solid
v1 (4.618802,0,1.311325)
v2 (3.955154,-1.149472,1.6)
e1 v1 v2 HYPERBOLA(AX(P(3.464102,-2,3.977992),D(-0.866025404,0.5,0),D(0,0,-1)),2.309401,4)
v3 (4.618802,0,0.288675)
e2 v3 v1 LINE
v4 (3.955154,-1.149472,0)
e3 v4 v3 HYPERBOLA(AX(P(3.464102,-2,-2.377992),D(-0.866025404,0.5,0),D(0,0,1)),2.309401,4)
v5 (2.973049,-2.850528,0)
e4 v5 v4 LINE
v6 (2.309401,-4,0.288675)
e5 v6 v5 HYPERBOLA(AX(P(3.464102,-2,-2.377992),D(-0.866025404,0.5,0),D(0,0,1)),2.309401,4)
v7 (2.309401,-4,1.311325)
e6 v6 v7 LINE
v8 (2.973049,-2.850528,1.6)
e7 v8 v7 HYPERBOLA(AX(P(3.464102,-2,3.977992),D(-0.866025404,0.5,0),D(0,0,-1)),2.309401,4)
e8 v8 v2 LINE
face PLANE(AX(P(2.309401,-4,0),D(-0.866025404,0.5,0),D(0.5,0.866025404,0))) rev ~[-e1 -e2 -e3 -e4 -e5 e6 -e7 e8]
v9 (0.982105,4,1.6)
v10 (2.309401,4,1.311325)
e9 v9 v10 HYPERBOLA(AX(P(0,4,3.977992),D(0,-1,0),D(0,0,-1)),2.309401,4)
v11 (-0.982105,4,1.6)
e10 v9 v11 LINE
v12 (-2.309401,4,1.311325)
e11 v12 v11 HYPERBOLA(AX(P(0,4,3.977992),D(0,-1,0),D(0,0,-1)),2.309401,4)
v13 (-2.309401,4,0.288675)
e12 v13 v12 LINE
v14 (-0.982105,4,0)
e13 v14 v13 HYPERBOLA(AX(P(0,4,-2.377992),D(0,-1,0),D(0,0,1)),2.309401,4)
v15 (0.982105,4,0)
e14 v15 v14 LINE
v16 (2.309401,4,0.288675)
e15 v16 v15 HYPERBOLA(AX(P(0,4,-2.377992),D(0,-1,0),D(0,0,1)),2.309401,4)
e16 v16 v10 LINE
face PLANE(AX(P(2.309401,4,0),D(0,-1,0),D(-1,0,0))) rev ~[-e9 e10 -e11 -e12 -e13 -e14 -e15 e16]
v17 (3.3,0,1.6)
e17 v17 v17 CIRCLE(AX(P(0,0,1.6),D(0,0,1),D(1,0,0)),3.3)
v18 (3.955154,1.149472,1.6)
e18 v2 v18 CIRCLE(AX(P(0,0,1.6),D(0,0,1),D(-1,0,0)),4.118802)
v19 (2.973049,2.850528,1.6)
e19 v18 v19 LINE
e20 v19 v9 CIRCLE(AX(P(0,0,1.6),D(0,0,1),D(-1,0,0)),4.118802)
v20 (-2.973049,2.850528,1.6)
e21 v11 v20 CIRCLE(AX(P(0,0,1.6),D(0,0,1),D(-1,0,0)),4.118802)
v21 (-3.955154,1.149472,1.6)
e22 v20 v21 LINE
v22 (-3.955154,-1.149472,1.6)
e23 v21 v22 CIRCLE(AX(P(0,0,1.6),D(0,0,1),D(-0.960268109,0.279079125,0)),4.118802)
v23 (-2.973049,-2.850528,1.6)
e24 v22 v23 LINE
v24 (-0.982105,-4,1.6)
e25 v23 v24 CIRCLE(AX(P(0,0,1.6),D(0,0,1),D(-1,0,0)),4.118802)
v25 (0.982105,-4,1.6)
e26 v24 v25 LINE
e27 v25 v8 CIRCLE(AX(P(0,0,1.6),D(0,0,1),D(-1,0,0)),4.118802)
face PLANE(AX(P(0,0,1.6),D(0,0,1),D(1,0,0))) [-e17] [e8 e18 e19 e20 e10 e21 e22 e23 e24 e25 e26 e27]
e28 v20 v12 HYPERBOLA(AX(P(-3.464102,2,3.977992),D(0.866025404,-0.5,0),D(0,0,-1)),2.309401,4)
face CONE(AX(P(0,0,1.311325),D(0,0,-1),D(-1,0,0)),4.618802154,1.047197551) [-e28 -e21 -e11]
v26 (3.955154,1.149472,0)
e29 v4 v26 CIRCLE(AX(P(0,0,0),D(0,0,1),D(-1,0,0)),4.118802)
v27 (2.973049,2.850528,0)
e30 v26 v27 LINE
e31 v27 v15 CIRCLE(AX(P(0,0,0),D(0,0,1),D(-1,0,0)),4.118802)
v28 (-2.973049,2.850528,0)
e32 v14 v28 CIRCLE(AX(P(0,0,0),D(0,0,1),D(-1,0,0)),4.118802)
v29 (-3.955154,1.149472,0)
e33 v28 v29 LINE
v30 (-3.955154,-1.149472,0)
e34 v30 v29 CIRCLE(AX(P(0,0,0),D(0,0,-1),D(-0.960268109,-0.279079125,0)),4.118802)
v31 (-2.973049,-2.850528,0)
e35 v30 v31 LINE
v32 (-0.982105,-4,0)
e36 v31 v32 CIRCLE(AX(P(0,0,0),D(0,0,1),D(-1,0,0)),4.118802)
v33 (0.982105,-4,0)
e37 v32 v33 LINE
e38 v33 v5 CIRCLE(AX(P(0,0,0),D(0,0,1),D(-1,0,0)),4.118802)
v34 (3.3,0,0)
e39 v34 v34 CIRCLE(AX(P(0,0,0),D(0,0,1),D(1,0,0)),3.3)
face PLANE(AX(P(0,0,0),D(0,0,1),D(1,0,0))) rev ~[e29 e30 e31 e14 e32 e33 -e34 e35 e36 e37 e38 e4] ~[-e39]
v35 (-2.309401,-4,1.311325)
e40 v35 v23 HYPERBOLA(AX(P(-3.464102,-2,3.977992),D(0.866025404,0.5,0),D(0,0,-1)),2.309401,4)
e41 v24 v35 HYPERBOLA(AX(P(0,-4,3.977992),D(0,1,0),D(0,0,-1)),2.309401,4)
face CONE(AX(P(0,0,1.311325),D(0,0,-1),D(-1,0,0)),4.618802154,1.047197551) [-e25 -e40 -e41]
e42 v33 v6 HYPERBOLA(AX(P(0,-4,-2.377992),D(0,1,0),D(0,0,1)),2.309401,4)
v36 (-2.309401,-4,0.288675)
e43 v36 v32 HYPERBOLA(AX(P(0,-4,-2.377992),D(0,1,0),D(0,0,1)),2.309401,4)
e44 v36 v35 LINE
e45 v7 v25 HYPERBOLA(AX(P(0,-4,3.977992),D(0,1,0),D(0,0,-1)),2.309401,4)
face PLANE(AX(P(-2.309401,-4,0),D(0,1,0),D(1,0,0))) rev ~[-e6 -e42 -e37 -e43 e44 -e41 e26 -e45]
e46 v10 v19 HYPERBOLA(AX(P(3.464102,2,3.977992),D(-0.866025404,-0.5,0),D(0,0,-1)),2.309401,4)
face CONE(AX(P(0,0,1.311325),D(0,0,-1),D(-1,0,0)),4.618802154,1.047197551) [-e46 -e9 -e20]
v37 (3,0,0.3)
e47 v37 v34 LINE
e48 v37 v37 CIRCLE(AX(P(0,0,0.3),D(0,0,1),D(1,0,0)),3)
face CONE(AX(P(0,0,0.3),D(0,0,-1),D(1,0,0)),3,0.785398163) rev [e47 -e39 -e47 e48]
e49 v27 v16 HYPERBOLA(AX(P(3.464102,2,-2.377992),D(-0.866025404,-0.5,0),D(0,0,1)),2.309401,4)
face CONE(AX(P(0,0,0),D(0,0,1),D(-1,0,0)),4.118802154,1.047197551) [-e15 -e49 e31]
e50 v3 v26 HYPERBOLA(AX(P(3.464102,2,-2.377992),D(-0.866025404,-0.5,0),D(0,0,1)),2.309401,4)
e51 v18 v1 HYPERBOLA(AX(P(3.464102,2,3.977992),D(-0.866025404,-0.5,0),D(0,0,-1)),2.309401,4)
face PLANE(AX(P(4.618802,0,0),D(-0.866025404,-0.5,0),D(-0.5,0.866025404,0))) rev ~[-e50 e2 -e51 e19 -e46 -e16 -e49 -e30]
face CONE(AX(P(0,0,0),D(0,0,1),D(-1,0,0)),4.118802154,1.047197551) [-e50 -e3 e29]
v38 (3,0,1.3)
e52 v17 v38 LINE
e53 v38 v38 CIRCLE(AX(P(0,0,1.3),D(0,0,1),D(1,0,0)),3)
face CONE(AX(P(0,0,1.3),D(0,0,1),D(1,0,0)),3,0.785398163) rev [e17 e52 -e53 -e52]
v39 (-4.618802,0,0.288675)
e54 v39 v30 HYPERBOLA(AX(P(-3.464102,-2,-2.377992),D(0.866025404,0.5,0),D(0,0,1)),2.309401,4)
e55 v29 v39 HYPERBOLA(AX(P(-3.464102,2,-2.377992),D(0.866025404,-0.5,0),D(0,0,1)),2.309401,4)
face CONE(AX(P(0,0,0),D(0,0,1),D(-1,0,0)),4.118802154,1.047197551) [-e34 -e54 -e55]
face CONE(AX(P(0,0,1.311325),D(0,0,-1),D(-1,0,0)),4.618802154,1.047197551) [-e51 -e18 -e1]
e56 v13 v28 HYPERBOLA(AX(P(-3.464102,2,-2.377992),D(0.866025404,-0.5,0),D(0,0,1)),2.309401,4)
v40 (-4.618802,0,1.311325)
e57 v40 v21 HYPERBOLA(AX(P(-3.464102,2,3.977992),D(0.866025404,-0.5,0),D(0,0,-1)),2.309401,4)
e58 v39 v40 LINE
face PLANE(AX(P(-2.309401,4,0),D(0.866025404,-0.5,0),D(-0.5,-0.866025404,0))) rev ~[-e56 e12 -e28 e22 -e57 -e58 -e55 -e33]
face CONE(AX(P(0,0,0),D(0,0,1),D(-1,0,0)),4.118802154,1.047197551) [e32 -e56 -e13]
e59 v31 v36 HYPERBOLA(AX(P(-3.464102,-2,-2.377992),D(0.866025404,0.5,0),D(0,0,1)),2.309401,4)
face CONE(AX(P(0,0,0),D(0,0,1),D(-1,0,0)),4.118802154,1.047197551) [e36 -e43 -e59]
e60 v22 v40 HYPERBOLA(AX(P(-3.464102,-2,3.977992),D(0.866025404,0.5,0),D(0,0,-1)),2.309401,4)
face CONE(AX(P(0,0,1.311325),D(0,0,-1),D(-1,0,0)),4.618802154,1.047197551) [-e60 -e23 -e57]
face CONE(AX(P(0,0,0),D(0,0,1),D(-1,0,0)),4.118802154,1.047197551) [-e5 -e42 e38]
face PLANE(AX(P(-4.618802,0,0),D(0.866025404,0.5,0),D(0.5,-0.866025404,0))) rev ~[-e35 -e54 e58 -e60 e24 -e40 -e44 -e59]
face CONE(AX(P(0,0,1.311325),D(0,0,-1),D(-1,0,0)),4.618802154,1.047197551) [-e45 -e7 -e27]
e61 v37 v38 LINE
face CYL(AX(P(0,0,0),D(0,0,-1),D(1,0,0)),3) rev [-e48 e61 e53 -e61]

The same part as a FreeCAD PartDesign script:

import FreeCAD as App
import Part
import Sketcher
Q = App.Units.Quantity


def edges_at(feature, points):
    """Names of the edges that pass closest to the given points."""
    edges = feature.Shape.Edges
    near = lambda p: min(range(len(edges)), key=lambda i: edges[i].distToShape(Part.Vertex(*p))[0])
    return sorted({f"Edge{near(p) + 1}" for p in points})

doc = App.newDocument("Part")
body = doc.addObject("PartDesign::Body", "Body")

# Sketch on XY plane
sketch1 = body.newObject("Sketcher::SketchObject", "Sketch")
sketch1.AttachmentSupport = (doc.getObject("XY_Plane"), [""])
sketch1.MapMode = "FlatFace"
sketch1.addGeometry([
    Part.LineSegment(App.Vector(4.6, 0, 0), App.Vector(2.3, 4, 0)),  # 0
    Part.LineSegment(App.Vector(2.3, 4, 0), App.Vector(-2.3, 4, 0)),  # 1
    Part.LineSegment(App.Vector(-2.3, 4, 0), App.Vector(-4.6, 0, 0)),  # 2
    Part.LineSegment(App.Vector(-4.6, 0, 0), App.Vector(-2.3, -4, 0)),  # 3
    Part.LineSegment(App.Vector(-2.3, -4, 0), App.Vector(2.3, -4, 0)),  # 4
    Part.LineSegment(App.Vector(2.3, -4, 0), App.Vector(4.6, 0, 0)),  # 5
    Part.Circle(App.Vector(0, 0, 0), App.Vector(0, 0, 1), 3),  # 6
], False)
sketch1.addConstraint([
    Sketcher.Constraint("Coincident", 0, 2, 1, 1),
    Sketcher.Constraint("Coincident", 1, 2, 2, 1),
    Sketcher.Constraint("Coincident", 2, 2, 3, 1),
    Sketcher.Constraint("Coincident", 3, 2, 4, 1),
    Sketcher.Constraint("Coincident", 4, 2, 5, 1),
    Sketcher.Constraint("Coincident", 5, 2, 0, 1),
    Sketcher.Constraint("Horizontal", 1),
    Sketcher.Constraint("Horizontal", 4),
    Sketcher.Constraint("Coincident", 6, 3, -1, 1),
    Sketcher.Constraint("Symmetric", 0, 2, 3, 2, -1, 1),
    Sketcher.Constraint("Symmetric", 2, 2, 5, 2, -1, 1),
    Sketcher.Constraint("PointOnObject", 2, 2, -1),
    Sketcher.Constraint("Parallel", 2, 5),
    Sketcher.Constraint("Vertical", 1, 2, 3, 2),
    Sketcher.Constraint("Diameter", 6, 6.0),
    Sketcher.Constraint("Angle", 0, Q("120 deg")),
    Sketcher.Constraint("DistanceY", -1, 1, 0, 2, 4.0),
    Sketcher.Constraint("DistanceX", -1, 1, 0, 2, 2.309401),
])
pad1 = body.newObject("PartDesign::Pad", "Pad")
pad1.Profile = sketch1
pad1.Length = 1.6

# Sketch on XZ plane
sketch2 = body.newObject("Sketcher::SketchObject", "Sketch001")
sketch2.AttachmentSupport = (doc.getObject("XZ_Plane"), [""])
sketch2.MapMode = "FlatFace"
sketch2.addGeometry([
    Part.LineSegment(App.Vector(-4.6, 0.3, 0), App.Vector(-4.1, 0, 0)),  # 0
    Part.LineSegment(App.Vector(-4.1, 0, 0), App.Vector(-5.6, 0, 0)),  # 1
    Part.LineSegment(App.Vector(-5.6, 0, 0), App.Vector(-5.6, 1.6, 0)),  # 2
    Part.LineSegment(App.Vector(-5.6, 1.6, 0), App.Vector(-4.1, 1.6, 0)),  # 3
    Part.LineSegment(App.Vector(-4.1, 1.6, 0), App.Vector(-4.6, 1.3, 0)),  # 4
    Part.LineSegment(App.Vector(-4.6, 1.3, 0), App.Vector(-4.6, 0.3, 0)),  # 5
], False)
sketch2.addConstraint([
    Sketcher.Constraint("Coincident", 0, 2, 1, 1),
    Sketcher.Constraint("Coincident", 1, 2, 2, 1),
    Sketcher.Constraint("Coincident", 2, 2, 3, 1),
    Sketcher.Constraint("Coincident", 3, 2, 4, 1),
    Sketcher.Constraint("Coincident", 4, 2, 5, 1),
    Sketcher.Constraint("Coincident", 5, 2, 0, 1),
    Sketcher.Constraint("Horizontal", 1),
    Sketcher.Constraint("Vertical", 2),
    Sketcher.Constraint("Horizontal", 3),
    Sketcher.Constraint("Vertical", 5),
    Sketcher.Constraint("PointOnObject", 0, 2, -1),
    Sketcher.Constraint("Vertical", 0, 2, 3, 2),
    Sketcher.Constraint("Equal", 0, 4),
    Sketcher.Constraint("Angle", 0, Q("-30 deg")),
    Sketcher.Constraint("DistanceX", 1, 2, 1, 1, 1.5),
    Sketcher.Constraint("DistanceY", 2, 1, 2, 2, 1.6),
    Sketcher.Constraint("DistanceX", 2, 2, 4, 2, 1.0),
    Sketcher.Constraint("DistanceX", 0, 2, -1, 1, 4.118802),
])
groove = body.newObject("PartDesign::Groove", "Groove")
groove.Profile = sketch2
groove.ReferenceAxis = (sketch2, ["V_Axis"])
groove.Angle = 360
doc.recompute()

chamfer = body.newObject("PartDesign::Chamfer", "Chamfer")
chamfer.Base = (groove, edges_at(groove, [(-3, 0, 0), (-3, 0, 1.6)]))
chamfer.Size = 0.3

doc.recompute()
